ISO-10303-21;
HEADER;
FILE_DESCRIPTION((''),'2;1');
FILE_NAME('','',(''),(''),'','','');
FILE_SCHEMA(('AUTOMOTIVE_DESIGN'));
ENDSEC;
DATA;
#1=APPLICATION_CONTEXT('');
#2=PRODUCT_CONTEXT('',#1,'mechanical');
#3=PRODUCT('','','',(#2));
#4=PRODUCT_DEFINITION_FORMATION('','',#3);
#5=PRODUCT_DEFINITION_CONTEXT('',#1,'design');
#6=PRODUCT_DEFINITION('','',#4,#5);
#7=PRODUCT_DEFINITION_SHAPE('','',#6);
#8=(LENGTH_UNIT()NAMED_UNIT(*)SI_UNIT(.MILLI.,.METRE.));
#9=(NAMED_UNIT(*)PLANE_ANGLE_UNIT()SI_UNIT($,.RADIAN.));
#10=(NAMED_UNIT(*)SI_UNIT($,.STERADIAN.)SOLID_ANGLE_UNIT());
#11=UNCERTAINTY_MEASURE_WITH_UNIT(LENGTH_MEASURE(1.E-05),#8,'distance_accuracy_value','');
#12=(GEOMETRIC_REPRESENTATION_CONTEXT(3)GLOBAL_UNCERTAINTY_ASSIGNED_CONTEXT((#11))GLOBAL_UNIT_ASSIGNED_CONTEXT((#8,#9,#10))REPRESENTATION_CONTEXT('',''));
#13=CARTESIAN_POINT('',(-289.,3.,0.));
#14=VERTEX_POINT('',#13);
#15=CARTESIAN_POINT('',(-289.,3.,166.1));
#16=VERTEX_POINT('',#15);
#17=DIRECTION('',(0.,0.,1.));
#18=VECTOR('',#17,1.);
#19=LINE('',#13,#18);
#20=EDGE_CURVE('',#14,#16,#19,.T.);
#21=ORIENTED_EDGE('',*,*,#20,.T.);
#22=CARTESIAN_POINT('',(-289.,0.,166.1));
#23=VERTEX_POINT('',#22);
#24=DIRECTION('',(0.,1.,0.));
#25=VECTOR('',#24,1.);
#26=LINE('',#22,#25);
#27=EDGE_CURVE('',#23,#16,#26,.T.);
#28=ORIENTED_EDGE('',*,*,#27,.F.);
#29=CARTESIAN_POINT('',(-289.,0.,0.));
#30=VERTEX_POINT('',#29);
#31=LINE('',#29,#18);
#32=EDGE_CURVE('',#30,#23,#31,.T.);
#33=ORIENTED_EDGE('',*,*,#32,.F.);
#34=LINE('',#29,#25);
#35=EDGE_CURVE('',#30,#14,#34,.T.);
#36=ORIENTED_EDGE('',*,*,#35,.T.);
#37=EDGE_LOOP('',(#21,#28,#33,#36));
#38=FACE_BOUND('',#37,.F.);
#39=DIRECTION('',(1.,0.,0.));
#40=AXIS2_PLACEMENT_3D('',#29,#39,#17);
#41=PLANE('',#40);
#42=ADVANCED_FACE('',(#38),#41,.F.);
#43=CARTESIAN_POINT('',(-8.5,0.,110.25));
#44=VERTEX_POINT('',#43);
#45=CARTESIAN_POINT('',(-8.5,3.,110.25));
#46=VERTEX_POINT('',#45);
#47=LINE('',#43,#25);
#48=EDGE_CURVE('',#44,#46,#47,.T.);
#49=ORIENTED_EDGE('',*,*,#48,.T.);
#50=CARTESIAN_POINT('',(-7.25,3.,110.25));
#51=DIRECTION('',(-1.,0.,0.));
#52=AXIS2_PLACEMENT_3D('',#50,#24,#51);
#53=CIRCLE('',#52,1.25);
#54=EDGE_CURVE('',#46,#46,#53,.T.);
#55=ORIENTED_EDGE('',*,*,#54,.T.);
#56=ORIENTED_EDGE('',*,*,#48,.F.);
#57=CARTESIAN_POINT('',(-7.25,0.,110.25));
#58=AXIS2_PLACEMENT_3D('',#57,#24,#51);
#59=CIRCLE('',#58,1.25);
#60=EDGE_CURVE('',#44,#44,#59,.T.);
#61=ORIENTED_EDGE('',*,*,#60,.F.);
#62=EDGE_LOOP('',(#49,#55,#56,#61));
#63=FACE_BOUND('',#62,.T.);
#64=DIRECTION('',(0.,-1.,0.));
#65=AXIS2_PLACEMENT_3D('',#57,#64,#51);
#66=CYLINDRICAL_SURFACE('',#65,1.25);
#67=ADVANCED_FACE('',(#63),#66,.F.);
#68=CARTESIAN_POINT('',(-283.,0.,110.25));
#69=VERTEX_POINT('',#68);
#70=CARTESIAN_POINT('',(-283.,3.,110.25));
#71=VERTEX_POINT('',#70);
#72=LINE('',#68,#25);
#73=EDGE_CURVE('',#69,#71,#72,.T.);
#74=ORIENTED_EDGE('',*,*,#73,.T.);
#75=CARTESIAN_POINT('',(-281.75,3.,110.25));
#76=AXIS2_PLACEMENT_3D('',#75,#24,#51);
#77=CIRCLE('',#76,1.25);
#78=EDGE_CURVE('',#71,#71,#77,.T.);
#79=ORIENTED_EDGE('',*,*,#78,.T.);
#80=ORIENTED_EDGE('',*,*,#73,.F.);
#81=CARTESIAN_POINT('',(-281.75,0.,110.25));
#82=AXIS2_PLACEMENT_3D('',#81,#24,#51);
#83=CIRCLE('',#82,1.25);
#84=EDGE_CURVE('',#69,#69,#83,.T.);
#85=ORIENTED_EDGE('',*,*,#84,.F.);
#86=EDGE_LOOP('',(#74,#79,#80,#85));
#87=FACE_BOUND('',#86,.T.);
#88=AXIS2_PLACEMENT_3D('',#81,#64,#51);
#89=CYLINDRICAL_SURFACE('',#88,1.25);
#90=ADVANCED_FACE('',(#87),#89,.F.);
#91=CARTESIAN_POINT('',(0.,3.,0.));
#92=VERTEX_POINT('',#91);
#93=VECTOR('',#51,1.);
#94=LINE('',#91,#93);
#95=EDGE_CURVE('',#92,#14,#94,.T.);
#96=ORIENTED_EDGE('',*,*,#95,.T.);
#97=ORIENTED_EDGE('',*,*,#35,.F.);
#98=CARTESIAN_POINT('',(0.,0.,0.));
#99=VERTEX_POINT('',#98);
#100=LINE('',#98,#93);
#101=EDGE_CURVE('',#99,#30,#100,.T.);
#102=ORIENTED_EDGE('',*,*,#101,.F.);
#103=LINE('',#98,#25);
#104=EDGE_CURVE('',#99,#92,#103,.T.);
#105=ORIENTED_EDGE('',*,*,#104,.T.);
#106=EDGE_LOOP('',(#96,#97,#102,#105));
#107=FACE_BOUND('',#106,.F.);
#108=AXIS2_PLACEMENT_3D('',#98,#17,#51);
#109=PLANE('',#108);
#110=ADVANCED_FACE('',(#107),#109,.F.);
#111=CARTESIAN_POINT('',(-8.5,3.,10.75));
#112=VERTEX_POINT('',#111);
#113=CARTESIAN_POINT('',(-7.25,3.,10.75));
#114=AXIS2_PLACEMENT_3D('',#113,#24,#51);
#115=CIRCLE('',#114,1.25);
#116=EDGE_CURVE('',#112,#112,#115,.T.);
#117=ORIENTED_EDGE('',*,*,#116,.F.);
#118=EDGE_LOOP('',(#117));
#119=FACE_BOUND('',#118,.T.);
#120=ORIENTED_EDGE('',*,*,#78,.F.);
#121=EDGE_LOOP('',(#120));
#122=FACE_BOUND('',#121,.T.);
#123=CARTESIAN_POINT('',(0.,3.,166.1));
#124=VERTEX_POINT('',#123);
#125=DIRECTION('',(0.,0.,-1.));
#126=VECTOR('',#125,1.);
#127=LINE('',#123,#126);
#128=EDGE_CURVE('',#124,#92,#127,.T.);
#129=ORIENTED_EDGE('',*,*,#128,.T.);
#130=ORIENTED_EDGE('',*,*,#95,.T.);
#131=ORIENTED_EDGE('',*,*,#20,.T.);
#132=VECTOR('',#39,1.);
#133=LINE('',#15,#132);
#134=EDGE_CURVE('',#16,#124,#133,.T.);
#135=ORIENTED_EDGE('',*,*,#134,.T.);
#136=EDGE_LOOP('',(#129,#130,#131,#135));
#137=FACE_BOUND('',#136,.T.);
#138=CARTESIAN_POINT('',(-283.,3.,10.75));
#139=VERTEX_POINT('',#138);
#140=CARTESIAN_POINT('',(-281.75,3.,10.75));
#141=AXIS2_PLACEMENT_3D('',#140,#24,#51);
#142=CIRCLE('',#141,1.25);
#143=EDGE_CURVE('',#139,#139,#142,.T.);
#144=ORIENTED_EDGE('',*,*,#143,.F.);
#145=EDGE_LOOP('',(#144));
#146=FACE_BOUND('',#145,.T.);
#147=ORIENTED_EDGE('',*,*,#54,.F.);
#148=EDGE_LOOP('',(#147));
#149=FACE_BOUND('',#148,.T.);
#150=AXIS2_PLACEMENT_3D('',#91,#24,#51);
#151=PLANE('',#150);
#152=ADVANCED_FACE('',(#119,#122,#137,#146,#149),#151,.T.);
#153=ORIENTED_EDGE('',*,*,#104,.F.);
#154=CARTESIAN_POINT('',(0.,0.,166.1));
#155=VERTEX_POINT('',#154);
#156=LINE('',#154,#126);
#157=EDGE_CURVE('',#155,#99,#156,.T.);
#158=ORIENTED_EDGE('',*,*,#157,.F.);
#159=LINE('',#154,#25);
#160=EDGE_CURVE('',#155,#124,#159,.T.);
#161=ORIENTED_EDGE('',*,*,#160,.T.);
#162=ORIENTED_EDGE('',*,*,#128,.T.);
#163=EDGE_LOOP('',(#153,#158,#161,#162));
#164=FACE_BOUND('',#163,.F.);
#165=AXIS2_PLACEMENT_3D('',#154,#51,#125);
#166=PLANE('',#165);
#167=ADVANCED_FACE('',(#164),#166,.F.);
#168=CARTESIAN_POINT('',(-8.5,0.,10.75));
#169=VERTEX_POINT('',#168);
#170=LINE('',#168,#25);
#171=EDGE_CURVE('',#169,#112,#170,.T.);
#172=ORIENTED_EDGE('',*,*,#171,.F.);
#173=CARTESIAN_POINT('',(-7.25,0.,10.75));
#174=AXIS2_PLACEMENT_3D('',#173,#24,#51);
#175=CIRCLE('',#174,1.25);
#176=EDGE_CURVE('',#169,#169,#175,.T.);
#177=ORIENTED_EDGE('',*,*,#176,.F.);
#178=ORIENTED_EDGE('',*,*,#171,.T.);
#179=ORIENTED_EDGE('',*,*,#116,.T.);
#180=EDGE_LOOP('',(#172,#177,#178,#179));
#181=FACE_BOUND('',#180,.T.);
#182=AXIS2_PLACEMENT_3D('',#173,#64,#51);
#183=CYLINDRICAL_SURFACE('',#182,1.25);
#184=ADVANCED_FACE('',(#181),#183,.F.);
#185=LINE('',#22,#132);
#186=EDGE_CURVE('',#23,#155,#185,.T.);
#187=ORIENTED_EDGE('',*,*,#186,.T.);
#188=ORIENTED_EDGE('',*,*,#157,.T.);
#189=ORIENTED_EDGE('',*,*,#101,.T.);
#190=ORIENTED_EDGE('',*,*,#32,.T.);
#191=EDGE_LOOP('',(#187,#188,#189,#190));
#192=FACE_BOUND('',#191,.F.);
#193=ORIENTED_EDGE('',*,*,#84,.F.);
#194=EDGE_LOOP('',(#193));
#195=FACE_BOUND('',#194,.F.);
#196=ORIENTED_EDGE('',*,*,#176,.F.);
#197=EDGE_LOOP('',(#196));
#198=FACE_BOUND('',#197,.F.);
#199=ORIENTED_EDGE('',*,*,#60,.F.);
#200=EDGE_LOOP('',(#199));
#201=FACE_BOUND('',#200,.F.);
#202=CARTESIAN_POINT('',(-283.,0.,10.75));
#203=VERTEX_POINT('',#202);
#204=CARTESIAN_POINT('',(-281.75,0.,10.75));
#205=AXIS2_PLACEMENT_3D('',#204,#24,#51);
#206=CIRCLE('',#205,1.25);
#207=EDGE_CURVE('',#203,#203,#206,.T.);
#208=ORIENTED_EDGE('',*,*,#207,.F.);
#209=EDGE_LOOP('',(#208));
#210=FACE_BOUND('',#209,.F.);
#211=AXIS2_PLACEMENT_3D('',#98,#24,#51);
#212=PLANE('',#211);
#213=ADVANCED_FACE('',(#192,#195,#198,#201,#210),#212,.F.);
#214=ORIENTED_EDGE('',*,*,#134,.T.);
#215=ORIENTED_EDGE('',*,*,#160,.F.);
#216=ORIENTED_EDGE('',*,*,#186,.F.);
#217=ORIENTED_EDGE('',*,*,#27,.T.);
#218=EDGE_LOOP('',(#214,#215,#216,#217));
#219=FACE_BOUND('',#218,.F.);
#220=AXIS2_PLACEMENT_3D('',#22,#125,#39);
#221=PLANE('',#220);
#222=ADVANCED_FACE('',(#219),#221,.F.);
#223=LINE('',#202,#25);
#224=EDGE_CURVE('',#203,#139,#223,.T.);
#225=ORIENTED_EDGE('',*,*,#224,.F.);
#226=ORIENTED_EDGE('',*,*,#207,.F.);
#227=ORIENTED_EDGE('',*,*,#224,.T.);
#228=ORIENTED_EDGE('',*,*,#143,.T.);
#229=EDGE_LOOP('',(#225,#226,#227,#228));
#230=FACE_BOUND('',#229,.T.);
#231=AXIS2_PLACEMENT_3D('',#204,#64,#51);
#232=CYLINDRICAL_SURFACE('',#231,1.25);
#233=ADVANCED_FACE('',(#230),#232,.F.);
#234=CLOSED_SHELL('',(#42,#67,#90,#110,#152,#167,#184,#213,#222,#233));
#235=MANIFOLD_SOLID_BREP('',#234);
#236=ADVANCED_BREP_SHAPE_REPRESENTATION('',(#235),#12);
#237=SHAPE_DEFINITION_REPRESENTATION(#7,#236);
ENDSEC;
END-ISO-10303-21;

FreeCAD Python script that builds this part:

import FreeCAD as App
import Part
import Sketcher

V = App.Vector

doc = App.newDocument("Part")
body = doc.addObject("PartDesign::Body", "Body")

sketch1 = doc.addObject("Sketcher::SketchObject", "Sketch")
body.addObject(sketch1)
sketch1.AttachmentSupport = (doc.XZ_Plane, [""])
sketch1.MapMode = "FlatFace"
sketch1.addGeometry(Part.LineSegment(V(0, 166.1, 0), V(0, 0, 0)), False)
sketch1.addGeometry(Part.LineSegment(V(0, 0, 0), V(-289, 0, 0)), False)
sketch1.addGeometry(Part.LineSegment(V(-289, 0, 0), V(-289, 166.1, 0)), False)
sketch1.addGeometry(Part.LineSegment(V(-289, 166.1, 0), V(0, 166.1, 0)), False)
sketch1.addGeometry(Part.Circle(V(-7.2, 10.8, 0), V(0, 0, 1), 1.2), False)
sketch1.addGeometry(Part.Circle(V(-281.8, 10.8, 0), V(0, 0, 1), 1.2), False)
sketch1.addGeometry(Part.Circle(V(-7.2, 110.2, 0), V(0, 0, 1), 1.2), False)
sketch1.addGeometry(Part.Circle(V(-281.8, 110.2, 0), V(0, 0, 1), 1.2), False)
sketch1.addConstraint(Sketcher.Constraint("Coincident", 0, 2, 1, 1))
sketch1.addConstraint(Sketcher.Constraint("Coincident", 1, 2, 2, 1))
sketch1.addConstraint(Sketcher.Constraint("Coincident", 2, 2, 3, 1))
sketch1.addConstraint(Sketcher.Constraint("Coincident", 3, 2, 0, 1))
sketch1.addConstraint(Sketcher.Constraint("Vertical", 0))
sketch1.addConstraint(Sketcher.Constraint("Horizontal", 1))
sketch1.addConstraint(Sketcher.Constraint("Vertical", 2))
sketch1.addConstraint(Sketcher.Constraint("Horizontal", 3))
sketch1.addConstraint(Sketcher.Constraint("Coincident", 0, 2, -1, 1))
sketch1.addConstraint(Sketcher.Constraint("Equal", 4, 5))
sketch1.addConstraint(Sketcher.Constraint("Equal", 5, 6))
sketch1.addConstraint(Sketcher.Constraint("Equal", 6, 7))
sketch1.addConstraint(Sketcher.Constraint("Horizontal", 4, 3, 5, 3))
sketch1.addConstraint(Sketcher.Constraint("Horizontal", 6, 3, 7, 3))
sketch1.addConstraint(Sketcher.Constraint("Vertical", 4, 3, 6, 3))
sketch1.addConstraint(Sketcher.Constraint("Vertical", 5, 3, 7, 3))
sketch1.addConstraint(Sketcher.Constraint("Diameter", 4, 2.5))
sketch1.addConstraint(Sketcher.Constraint("DistanceX", 1, 2, 1, 1, 289.0))
sketch1.addConstraint(Sketcher.Constraint("DistanceY", 0, 2, 0, 1, 166.1))
sketch1.addConstraint(Sketcher.Constraint("DistanceY", 4, 3, 6, 3, 99.5))
sketch1.addConstraint(Sketcher.Constraint("DistanceX", 4, 3, -1, 1, 7.25))
sketch1.addConstraint(Sketcher.Constraint("DistanceY", -1, 1, 4, 3, 10.75))
sketch1.addConstraint(Sketcher.Constraint("DistanceX", 1, 2, 5, 3, 7.25))
pad1 = doc.addObject("PartDesign::Pad", "Pad")
body.addObject(pad1)
pad1.Profile = sketch1
pad1.Length = 3
pad1.Reversed = True

doc.recompute()
